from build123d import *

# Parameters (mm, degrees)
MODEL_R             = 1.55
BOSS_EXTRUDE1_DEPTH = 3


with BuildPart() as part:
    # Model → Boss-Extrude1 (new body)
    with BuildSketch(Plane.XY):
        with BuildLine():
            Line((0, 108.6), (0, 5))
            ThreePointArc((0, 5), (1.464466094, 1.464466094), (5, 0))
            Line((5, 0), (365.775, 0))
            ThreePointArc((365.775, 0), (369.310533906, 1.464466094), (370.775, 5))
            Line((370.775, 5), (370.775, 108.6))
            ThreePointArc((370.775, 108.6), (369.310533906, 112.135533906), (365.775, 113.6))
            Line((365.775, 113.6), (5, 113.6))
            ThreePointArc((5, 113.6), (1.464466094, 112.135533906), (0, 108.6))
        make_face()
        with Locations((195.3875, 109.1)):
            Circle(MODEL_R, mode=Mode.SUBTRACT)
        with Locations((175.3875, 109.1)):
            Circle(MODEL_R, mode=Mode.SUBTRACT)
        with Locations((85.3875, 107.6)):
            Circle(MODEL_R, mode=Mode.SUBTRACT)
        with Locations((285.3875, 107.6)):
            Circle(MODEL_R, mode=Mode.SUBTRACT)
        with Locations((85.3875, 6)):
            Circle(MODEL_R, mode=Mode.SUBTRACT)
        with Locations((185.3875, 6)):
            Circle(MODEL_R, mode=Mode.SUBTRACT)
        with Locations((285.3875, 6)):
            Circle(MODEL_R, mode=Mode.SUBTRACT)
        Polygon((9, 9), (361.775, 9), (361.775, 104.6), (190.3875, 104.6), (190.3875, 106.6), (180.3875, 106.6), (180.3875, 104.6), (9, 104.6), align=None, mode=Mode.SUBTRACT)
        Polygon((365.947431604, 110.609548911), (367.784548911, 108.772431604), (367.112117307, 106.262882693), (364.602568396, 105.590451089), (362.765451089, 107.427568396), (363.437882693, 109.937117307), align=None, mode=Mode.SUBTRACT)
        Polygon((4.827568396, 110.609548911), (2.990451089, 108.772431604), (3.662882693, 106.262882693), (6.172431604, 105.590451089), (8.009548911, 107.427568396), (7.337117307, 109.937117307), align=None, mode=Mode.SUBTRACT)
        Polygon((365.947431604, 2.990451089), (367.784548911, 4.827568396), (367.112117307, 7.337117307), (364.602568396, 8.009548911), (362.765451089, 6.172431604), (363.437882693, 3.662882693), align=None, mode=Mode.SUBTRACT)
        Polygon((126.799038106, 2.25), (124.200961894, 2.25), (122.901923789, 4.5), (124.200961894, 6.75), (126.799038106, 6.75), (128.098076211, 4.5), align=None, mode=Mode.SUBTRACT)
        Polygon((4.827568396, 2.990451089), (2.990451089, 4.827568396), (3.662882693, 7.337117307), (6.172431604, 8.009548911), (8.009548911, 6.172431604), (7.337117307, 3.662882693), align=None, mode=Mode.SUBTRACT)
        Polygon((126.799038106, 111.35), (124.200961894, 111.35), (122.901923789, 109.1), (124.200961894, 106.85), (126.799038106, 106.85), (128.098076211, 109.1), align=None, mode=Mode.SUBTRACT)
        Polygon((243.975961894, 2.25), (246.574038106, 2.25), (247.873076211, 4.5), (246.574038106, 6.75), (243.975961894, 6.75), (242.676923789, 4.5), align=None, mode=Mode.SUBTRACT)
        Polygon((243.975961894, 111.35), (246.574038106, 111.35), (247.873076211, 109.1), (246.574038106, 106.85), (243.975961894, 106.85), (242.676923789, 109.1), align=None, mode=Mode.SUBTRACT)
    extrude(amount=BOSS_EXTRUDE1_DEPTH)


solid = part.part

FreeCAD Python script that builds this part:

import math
import FreeCAD as App
import Part
import Sketcher
Q = App.Units.Quantity

doc = App.newDocument("Part")
params = doc.addObject("Spreadsheet::Sheet", "Params")
for row, (alias, value) in enumerate([
    ("sketch1_radius", "5 mm"),
    ("sketch1_diameter", "3.1 mm"),
    ("sketch1_width", "10 mm"),
    ("sketch1_height", "2 mm"),
    ("sketch1_height2", "103.6 mm"),
    ("pad1_length", "3 mm"),
], start=1):
    params.set(f"A{row}", alias)
    params.set(f"B{row}", "=" + value)
    params.setAlias(f"B{row}", alias)

body = doc.addObject("PartDesign::Body", "Body")

# Sketch on XY plane
sketch1 = body.newObject("Sketcher::SketchObject", "Sketch")
sketch1.AttachmentSupport = (doc.getObject("XY_Plane"), [""])
sketch1.MapMode = "FlatFace"
sketch1.addGeometry(Part.LineSegment(App.Vector(0, 108.6, 0), App.Vector(0, 5, 0)), False)
sketch1.addGeometry(Part.ArcOfCircle(Part.Circle(App.Vector(5, 5, 0), App.Vector(0, 0, 1), 5), math.radians(180), math.radians(270)), False)
sketch1.addGeometry(Part.LineSegment(App.Vector(5, 0, 0), App.Vector(365.775, 0, 0)), False)
sketch1.addGeometry(Part.ArcOfCircle(Part.Circle(App.Vector(365.775, 5, 0), App.Vector(0, 0, 1), 5), math.radians(-90), math.radians(0)), False)
sketch1.addGeometry(Part.LineSegment(App.Vector(370.775, 5, 0), App.Vector(370.775, 108.6, 0)), False)
sketch1.addGeometry(Part.ArcOfCircle(Part.Circle(App.Vector(365.775, 108.6, 0), App.Vector(0, 0, 1), 5), math.radians(0), math.radians(90)), False)
sketch1.addGeometry(Part.LineSegment(App.Vector(365.775, 113.6, 0), App.Vector(5, 113.6, 0)), False)
sketch1.addGeometry(Part.ArcOfCircle(Part.Circle(App.Vector(5, 108.6, 0), App.Vector(0, 0, 1), 5), math.radians(90), math.radians(180)), False)
sketch1.addGeometry(Part.LineSegment(App.Vector(7.337117, 3.662883, 0), App.Vector(4.827568, 2.990451, 0)), False)
sketch1.addGeometry(Part.LineSegment(App.Vector(4.827568, 2.990451, 0), App.Vector(2.990451, 4.827568, 0)), False)
sketch1.addGeometry(Part.LineSegment(App.Vector(2.990451, 4.827568, 0), App.Vector(3.662883, 7.337117, 0)), False)
sketch1.addGeometry(Part.LineSegment(App.Vector(3.662883, 7.337117, 0), App.Vector(6.172432, 8.009549, 0)), False)
sketch1.addGeometry(Part.LineSegment(App.Vector(6.172432, 8.009549, 0), App.Vector(8.009549, 6.172432, 0)), False)
sketch1.addGeometry(Part.LineSegment(App.Vector(8.009549, 6.172432, 0), App.Vector(7.337117, 3.662883, 0)), False)
sketch1.addGeometry(Part.Circle(App.Vector(85.3875, 6, 0), App.Vector(0, 0, 1), 1.55), False)
sketch1.addGeometry(Part.LineSegment(App.Vector(128.098076, 4.5, 0), App.Vector(126.799038, 2.25, 0)), False)
sketch1.addGeometry(Part.LineSegment(App.Vector(126.799038, 2.25, 0), App.Vector(124.200962, 2.25, 0)), False)
sketch1.addGeometry(Part.LineSegment(App.Vector(124.200962, 2.25, 0), App.Vector(122.901924, 4.5, 0)), False)
sketch1.addGeometry(Part.LineSegment(App.Vector(122.901924, 4.5, 0), App.Vector(124.200962, 6.75, 0)), False)
sketch1.addGeometry(Part.LineSegment(App.Vector(124.200962, 6.75, 0), App.Vector(126.799038, 6.75, 0)), False)
sketch1.addGeometry(Part.LineSegment(App.Vector(126.799038, 6.75, 0), App.Vector(128.098076, 4.5, 0)), False)
sketch1.addGeometry(Part.Circle(App.Vector(185.3875, 6, 0), App.Vector(0, 0, 1), 1.55), False)
sketch1.addGeometry(Part.LineSegment(App.Vector(246.574038, 2.25, 0), App.Vector(243.975962, 2.25, 0)), False)
sketch1.addGeometry(Part.LineSegment(App.Vector(243.975962, 2.25, 0), App.Vector(242.676924, 4.5, 0)), False)
sketch1.addGeometry(Part.LineSegment(App.Vector(242.676924, 4.5, 0), App.Vector(243.975962, 6.75, 0)), False)
sketch1.addGeometry(Part.LineSegment(App.Vector(243.975962, 6.75, 0), App.Vector(246.574038, 6.75, 0)), False)
sketch1.addGeometry(Part.LineSegment(App.Vector(246.574038, 6.75, 0), App.Vector(247.873076, 4.5, 0)), False)
sketch1.addGeometry(Part.LineSegment(App.Vector(247.873076, 4.5, 0), App.Vector(246.574038, 2.25, 0)), False)
sketch1.addGeometry(Part.Circle(App.Vector(285.3875, 6, 0), App.Vector(0, 0, 1), 1.55), False)
sketch1.addGeometry(Part.LineSegment(App.Vector(367.784549, 4.827568, 0), App.Vector(365.947432, 2.990451, 0)), False)
sketch1.addGeometry(Part.LineSegment(App.Vector(365.947432, 2.990451, 0), App.Vector(363.437883, 3.662883, 0)), False)
sketch1.addGeometry(Part.LineSegment(App.Vector(363.437883, 3.662883, 0), App.Vector(362.765451, 6.172432, 0)), False)
sketch1.addGeometry(Part.LineSegment(App.Vector(362.765451, 6.172432, 0), App.Vector(364.602568, 8.009549, 0)), False)
sketch1.addGeometry(Part.LineSegment(App.Vector(364.602568, 8.009549, 0), App.Vector(367.112117, 7.337117, 0)), False)
sketch1.addGeometry(Part.LineSegment(App.Vector(367.112117, 7.337117, 0), App.Vector(367.784549, 4.827568, 0)), False)
sketch1.addGeometry(Part.LineSegment(App.Vector(361.775, 9, 0), App.Vector(9, 9, 0)), False)
sketch1.addGeometry(Part.LineSegment(App.Vector(9, 9, 0), App.Vector(9, 104.6, 0)), False)
sketch1.addGeometry(Part.LineSegment(App.Vector(9, 104.6, 0), App.Vector(180.3875, 104.6, 0)), False)
sketch1.addGeometry(Part.LineSegment(App.Vector(180.3875, 104.6, 0), App.Vector(180.3875, 106.6, 0)), False)
sketch1.addGeometry(Part.LineSegment(App.Vector(180.3875, 106.6, 0), App.Vector(190.3875, 106.6, 0)), False)
sketch1.addGeometry(Part.LineSegment(App.Vector(190.3875, 106.6, 0), App.Vector(190.3875, 104.6, 0)), False)
sketch1.addGeometry(Part.LineSegment(App.Vector(190.3875, 104.6, 0), App.Vector(361.775, 104.6, 0)), False)
sketch1.addGeometry(Part.LineSegment(App.Vector(361.775, 104.6, 0), App.Vector(361.775, 9, 0)), False)
sketch1.addGeometry(Part.LineSegment(App.Vector(2.990451, 108.772432, 0), App.Vector(4.827568, 110.609549, 0)), False)
sketch1.addGeometry(Part.LineSegment(App.Vector(4.827568, 110.609549, 0), App.Vector(7.337117, 109.937117, 0)), False)
sketch1.addGeometry(Part.LineSegment(App.Vector(7.337117, 109.937117, 0), App.Vector(8.009549, 107.427568, 0)), False)
sketch1.addGeometry(Part.LineSegment(App.Vector(8.009549, 107.427568, 0), App.Vector(6.172432, 105.590451, 0)), False)
sketch1.addGeometry(Part.LineSegment(App.Vector(6.172432, 105.590451, 0), App.Vector(3.662883, 106.262883, 0)), False)
sketch1.addGeometry(Part.LineSegment(App.Vector(3.662883, 106.262883, 0), App.Vector(2.990451, 108.772432, 0)), False)
sketch1.addGeometry(Part.Circle(App.Vector(85.3875, 107.6, 0), App.Vector(0, 0, 1), 1.55), False)
sketch1.addGeometry(Part.LineSegment(App.Vector(124.200962, 111.35, 0), App.Vector(126.799038, 111.35, 0)), False)
sketch1.addGeometry(Part.LineSegment(App.Vector(126.799038, 111.35, 0), App.Vector(128.098076, 109.1, 0)), False)
sketch1.addGeometry(Part.LineSegment(App.Vector(128.098076, 109.1, 0), App.Vector(126.799038, 106.85, 0)), False)
sketch1.addGeometry(Part.LineSegment(App.Vector(126.799038, 106.85, 0), App.Vector(124.200962, 106.85, 0)), False)
sketch1.addGeometry(Part.LineSegment(App.Vector(124.200962, 106.85, 0), App.Vector(122.901924, 109.1, 0)), False)
sketch1.addGeometry(Part.LineSegment(App.Vector(122.901924, 109.1, 0), App.Vector(124.200962, 111.35, 0)), False)
sketch1.addGeometry(Part.Circle(App.Vector(175.3875, 109.1, 0), App.Vector(0, 0, 1), 1.55), False)
sketch1.addGeometry(Part.Circle(App.Vector(195.3875, 109.1, 0), App.Vector(0, 0, 1), 1.55), False)
sketch1.addGeometry(Part.LineSegment(App.Vector(242.676924, 109.1, 0), App.Vector(243.975962, 111.35, 0)), False)
sketch1.addGeometry(Part.LineSegment(App.Vector(243.975962, 111.35, 0), App.Vector(246.574038, 111.35, 0)), False)
sketch1.addGeometry(Part.LineSegment(App.Vector(246.574038, 111.35, 0), App.Vector(247.873076, 109.1, 0)), False)
sketch1.addGeometry(Part.LineSegment(App.Vector(247.873076, 109.1, 0), App.Vector(246.574038, 106.85, 0)), False)
sketch1.addGeometry(Part.LineSegment(App.Vector(246.574038, 106.85, 0), App.Vector(243.975962, 106.85, 0)), False)
sketch1.addGeometry(Part.LineSegment(App.Vector(243.975962, 106.85, 0), App.Vector(242.676924, 109.1, 0)), False)
sketch1.addGeometry(Part.Circle(App.Vector(285.3875, 107.6, 0), App.Vector(0, 0, 1), 1.55), False)
sketch1.addGeometry(Part.LineSegment(App.Vector(363.437883, 109.937117, 0), App.Vector(365.947432, 110.609549, 0)), False)
sketch1.addGeometry(Part.LineSegment(App.Vector(365.947432, 110.609549, 0), App.Vector(367.784549, 108.772432, 0)), False)
sketch1.addGeometry(Part.LineSegment(App.Vector(367.784549, 108.772432, 0), App.Vector(367.112117, 106.262883, 0)), False)
sketch1.addGeometry(Part.LineSegment(App.Vector(367.112117, 106.262883, 0), App.Vector(364.602568, 105.590451, 0)), False)
sketch1.addGeometry(Part.LineSegment(App.Vector(364.602568, 105.590451, 0), App.Vector(362.765451, 107.427568, 0)), False)
sketch1.addGeometry(Part.LineSegment(App.Vector(362.765451, 107.427568, 0), App.Vector(363.437883, 109.937117, 0)), False)
sketch1.addConstraint(Sketcher.Constraint("Tangent", 0, 2, 1, 1))
sketch1.addConstraint(Sketcher.Constraint("Tangent", 1, 2, 2, 1))
sketch1.addConstraint(Sketcher.Constraint("Tangent", 2, 2, 3, 1))
sketch1.addConstraint(Sketcher.Constraint("Tangent", 3, 2, 4, 1))
sketch1.addConstraint(Sketcher.Constraint("Tangent", 4, 2, 5, 1))
sketch1.addConstraint(Sketcher.Constraint("Tangent", 5, 2, 6, 1))
sketch1.addConstraint(Sketcher.Constraint("Tangent", 6, 2, 7, 1))
sketch1.addConstraint(Sketcher.Constraint("Tangent", 7, 2, 0, 1))
sketch1.addConstraint(Sketcher.Constraint("Coincident", 8, 2, 9, 1))
sketch1.addConstraint(Sketcher.Constraint("Coincident", 9, 2, 10, 1))
sketch1.addConstraint(Sketcher.Constraint("Coincident", 10, 2, 11, 1))
sketch1.addConstraint(Sketcher.Constraint("Coincident", 11, 2, 12, 1))
sketch1.addConstraint(Sketcher.Constraint("Coincident", 12, 2, 13, 1))
sketch1.addConstraint(Sketcher.Constraint("Coincident", 13, 2, 8, 1))
sketch1.addConstraint(Sketcher.Constraint("Coincident", 15, 2, 16, 1))
sketch1.addConstraint(Sketcher.Constraint("Coincident", 16, 2, 17, 1))
sketch1.addConstraint(Sketcher.Constraint("Coincident", 17, 2, 18, 1))
sketch1.addConstraint(Sketcher.Constraint("Coincident", 18, 2, 19, 1))
sketch1.addConstraint(Sketcher.Constraint("Coincident", 19, 2, 20, 1))
sketch1.addConstraint(Sketcher.Constraint("Coincident", 20, 2, 15, 1))
sketch1.addConstraint(Sketcher.Constraint("Coincident", 22, 2, 23, 1))
sketch1.addConstraint(Sketcher.Constraint("Coincident", 23, 2, 24, 1))
sketch1.addConstraint(Sketcher.Constraint("Coincident", 24, 2, 25, 1))
sketch1.addConstraint(Sketcher.Constraint("Coincident", 25, 2, 26, 1))
sketch1.addConstraint(Sketcher.Constraint("Coincident", 26, 2, 27, 1))
sketch1.addConstraint(Sketcher.Constraint("Coincident", 27, 2, 22, 1))
sketch1.addConstraint(Sketcher.Constraint("Coincident", 29, 2, 30, 1))
sketch1.addConstraint(Sketcher.Constraint("Coincident", 30, 2, 31, 1))
sketch1.addConstraint(Sketcher.Constraint("Coincident", 31, 2, 32, 1))
sketch1.addConstraint(Sketcher.Constraint("Coincident", 32, 2, 33, 1))
sketch1.addConstraint(Sketcher.Constraint("Coincident", 33, 2, 34, 1))
sketch1.addConstraint(Sketcher.Constraint("Coincident", 34, 2, 29, 1))
sketch1.addConstraint(Sketcher.Constraint("Coincident", 35, 2, 36, 1))
sketch1.addConstraint(Sketcher.Constraint("Coincident", 36, 2, 37, 1))
sketch1.addConstraint(Sketcher.Constraint("Coincident", 37, 2, 38, 1))
sketch1.addConstraint(Sketcher.Constraint("Coincident", 38, 2, 39, 1))
sketch1.addConstraint(Sketcher.Constraint("Coincident", 39, 2, 40, 1))
sketch1.addConstraint(Sketcher.Constraint("Coincident", 40, 2, 41, 1))
sketch1.addConstraint(Sketcher.Constraint("Coincident", 41, 2, 42, 1))
sketch1.addConstraint(Sketcher.Constraint("Coincident", 42, 2, 35, 1))
sketch1.addConstraint(Sketcher.Constraint("Coincident", 43, 2, 44, 1))
sketch1.addConstraint(Sketcher.Constraint("Coincident", 44, 2, 45, 1))
sketch1.addConstraint(Sketcher.Constraint("Coincident", 45, 2, 46, 1))
sketch1.addConstraint(Sketcher.Constraint("Coincident", 46, 2, 47, 1))
sketch1.addConstraint(Sketcher.Constraint("Coincident", 47, 2, 48, 1))
sketch1.addConstraint(Sketcher.Constraint("Coincident", 48, 2, 43, 1))
sketch1.addConstraint(Sketcher.Constraint("Coincident", 50, 2, 51, 1))
sketch1.addConstraint(Sketcher.Constraint("Coincident", 51, 2, 52, 1))
sketch1.addConstraint(Sketcher.Constraint("Coincident", 52, 2, 53, 1))
sketch1.addConstraint(Sketcher.Constraint("Coincident", 53, 2, 54, 1))
sketch1.addConstraint(Sketcher.Constraint("Coincident", 54, 2, 55, 1))
sketch1.addConstraint(Sketcher.Constraint("Coincident", 55, 2, 50, 1))
sketch1.addConstraint(Sketcher.Constraint("Coincident", 58, 2, 59, 1))
sketch1.addConstraint(Sketcher.Constraint("Coincident", 59, 2, 60, 1))
sketch1.addConstraint(Sketcher.Constraint("Coincident", 60, 2, 61, 1))
sketch1.addConstraint(Sketcher.Constraint("Coincident", 61, 2, 62, 1))
sketch1.addConstraint(Sketcher.Constraint("Coincident", 62, 2, 63, 1))
sketch1.addConstraint(Sketcher.Constraint("Coincident", 63, 2, 58, 1))
sketch1.addConstraint(Sketcher.Constraint("Coincident", 65, 2, 66, 1))
sketch1.addConstraint(Sketcher.Constraint("Coincident", 66, 2, 67, 1))
sketch1.addConstraint(Sketcher.Constraint("Coincident", 67, 2, 68, 1))
sketch1.addConstraint(Sketcher.Constraint("Coincident", 68, 2, 69, 1))
sketch1.addConstraint(Sketcher.Constraint("Coincident", 69, 2, 70, 1))
sketch1.addConstraint(Sketcher.Constraint("Coincident", 70, 2, 65, 1))
sketch1.addConstraint(Sketcher.Constraint("Vertical", 0))
sketch1.addConstraint(Sketcher.Constraint("Horizontal", 2))
sketch1.addConstraint(Sketcher.Constraint("Vertical", 4))
sketch1.addConstraint(Sketcher.Constraint("Horizontal", 6))
sketch1.addConstraint(Sketcher.Constraint("Horizontal", 16))
sketch1.addConstraint(Sketcher.Constraint("Horizontal", 19))
sketch1.addConstraint(Sketcher.Constraint("Horizontal", 22))
sketch1.addConstraint(Sketcher.Constraint("Horizontal", 25))
sketch1.addConstraint(Sketcher.Constraint("Horizontal", 35))
sketch1.addConstraint(Sketcher.Constraint("Vertical", 36))
sketch1.addConstraint(Sketcher.Constraint("Horizontal", 37))
sketch1.addConstraint(Sketcher.Constraint("Vertical", 38))
sketch1.addConstraint(Sketcher.Constraint("Horizontal", 39))
sketch1.addConstraint(Sketcher.Constraint("Vertical", 40))
sketch1.addConstraint(Sketcher.Constraint("Horizontal", 41))
sketch1.addConstraint(Sketcher.Constraint("Vertical", 42))
sketch1.addConstraint(Sketcher.Constraint("Horizontal", 50))
sketch1.addConstraint(Sketcher.Constraint("Horizontal", 53))
sketch1.addConstraint(Sketcher.Constraint("Horizontal", 59))
sketch1.addConstraint(Sketcher.Constraint("Horizontal", 62))
sketch1.addConstraint(Sketcher.Constraint("Equal", 1, 3))
sketch1.addConstraint(Sketcher.Constraint("Equal", 3, 5))
sketch1.addConstraint(Sketcher.Constraint("Equal", 5, 7))
sketch1.addConstraint(Sketcher.Constraint("Equal", 14, 21))
sketch1.addConstraint(Sketcher.Constraint("Equal", 21, 28))
sketch1.addConstraint(Sketcher.Constraint("Equal", 28, 49))
sketch1.addConstraint(Sketcher.Constraint("Equal", 49, 56))
sketch1.addConstraint(Sketcher.Constraint("Equal", 56, 57))
sketch1.addConstraint(Sketcher.Constraint("Equal", 57, 64))
sketch1.addConstraint(Sketcher.Constraint("PointOnObject", 0, 2, -2))
sketch1.addConstraint(Sketcher.Constraint("PointOnObject", 1, 2, -1))
sketch1.addConstraint(Sketcher.Constraint("Parallel", 8, 11))
sketch1.addConstraint(Sketcher.Constraint("Parallel", 9, 12))
sketch1.addConstraint(Sketcher.Constraint("Parallel", 10, 13))
sketch1.addConstraint(Sketcher.Constraint("Parallel", 15, 18))
sketch1.addConstraint(Sketcher.Constraint("Parallel", 17, 20))
sketch1.addConstraint(Sketcher.Constraint("Parallel", 20, 23))
sketch1.addConstraint(Sketcher.Constraint("Parallel", 18, 24))
sketch1.addConstraint(Sketcher.Constraint("Parallel", 23, 26))
sketch1.addConstraint(Sketcher.Constraint("Parallel", 24, 27))
sketch1.addConstraint(Sketcher.Constraint("Perpendicular", 12, 29))
sketch1.addConstraint(Sketcher.Constraint("Perpendicular", 13, 30))
sketch1.addConstraint(Sketcher.Constraint("Perpendicular", 11, 31))
sketch1.addConstraint(Sketcher.Constraint("Parallel", 29, 32))
sketch1.addConstraint(Sketcher.Constraint("Parallel", 30, 33))
sketch1.addConstraint(Sketcher.Constraint("Parallel", 31, 34))
sketch1.addConstraint(Sketcher.Constraint("Parallel", 32, 43))
sketch1.addConstraint(Sketcher.Constraint("Parallel", 33, 44))
sketch1.addConstraint(Sketcher.Constraint("Parallel", 34, 45))
sketch1.addConstraint(Sketcher.Constraint("Parallel", 43, 46))
sketch1.addConstraint(Sketcher.Constraint("Parallel", 44, 47))
sketch1.addConstraint(Sketcher.Constraint("Parallel", 45, 48))
sketch1.addConstraint(Sketcher.Constraint("Parallel", 26, 51))
sketch1.addConstraint(Sketcher.Constraint("Parallel", 27, 52))
sketch1.addConstraint(Sketcher.Constraint("Parallel", 51, 54))
sketch1.addConstraint(Sketcher.Constraint("Parallel", 52, 55))
sketch1.addConstraint(Sketcher.Constraint("Parallel", 55, 58))
sketch1.addConstraint(Sketcher.Constraint("Parallel", 54, 60))
sketch1.addConstraint(Sketcher.Constraint("Parallel", 58, 61))
sketch1.addConstraint(Sketcher.Constraint("Parallel", 60, 63))
sketch1.addConstraint(Sketcher.Constraint("Perpendicular", 48, 65))
sketch1.addConstraint(Sketcher.Constraint("Perpendicular", 46, 66))
sketch1.addConstraint(Sketcher.Constraint("Perpendicular", 47, 67))
sketch1.addConstraint(Sketcher.Constraint("Parallel", 65, 68))
sketch1.addConstraint(Sketcher.Constraint("Parallel", 66, 69))
sketch1.addConstraint(Sketcher.Constraint("Parallel", 67, 70))
sketch1.addConstraint(Sketcher.Constraint("Horizontal", 14, 3, 21, 3))
sketch1.addConstraint(Sketcher.Constraint("Horizontal", 21, 3, 28, 3))
sketch1.addConstraint(Sketcher.Constraint("Horizontal", 56, 3, 57, 3))
sketch1.addConstraint(Sketcher.Constraint("Horizontal", 49, 3, 64, 3))
sketch1.addConstraint(Sketcher.Constraint("Horizontal", 17, 2, 20, 2))
sketch1.addConstraint(Sketcher.Constraint("Horizontal", 16, 2, 22, 2))
sketch1.addConstraint(Sketcher.Constraint("Horizontal", 20, 2, 23, 2))
sketch1.addConstraint(Sketcher.Constraint("Horizontal", 19, 2, 24, 2))
sketch1.addConstraint(Sketcher.Constraint("Horizontal", 23, 2, 26, 2))
sketch1.addConstraint(Sketcher.Constraint("Horizontal", 8, 2, 29, 2))
sketch1.addConstraint(Sketcher.Constraint("Horizontal", 13, 2, 30, 2))
sketch1.addConstraint(Sketcher.Constraint("Horizontal", 12, 2, 31, 2))
sketch1.addConstraint(Sketcher.Constraint("Horizontal", 11, 2, 32, 2))
sketch1.addConstraint(Sketcher.Constraint("Horizontal", 10, 2, 33, 2))
sketch1.addConstraint(Sketcher.Constraint("Horizontal", 37, 2, 40, 2))
sketch1.addConstraint(Sketcher.Constraint("Horizontal", 57, 3, 51, 2))
sketch1.addConstraint(Sketcher.Constraint("Horizontal", 51, 2, 54, 2))
sketch1.addConstraint(Sketcher.Constraint("Horizontal", 55, 2, 58, 2))
sketch1.addConstraint(Sketcher.Constraint("Horizontal", 54, 2, 60, 2))
sketch1.addConstraint(Sketcher.Constraint("Horizontal", 53, 2, 61, 2))
sketch1.addConstraint(Sketcher.Constraint("Horizontal", 60, 2, 63, 2))
sketch1.addConstraint(Sketcher.Constraint("Horizontal", 43, 2, 65, 2))
sketch1.addConstraint(Sketcher.Constraint("Horizontal", 48, 2, 66, 2))
sketch1.addConstraint(Sketcher.Constraint("Horizontal", 47, 2, 67, 2))
sketch1.addConstraint(Sketcher.Constraint("Horizontal", 46, 2, 68, 2))
sketch1.addConstraint(Sketcher.Constraint("Horizontal", 45, 2, 69, 2))
sketch1.addConstraint(Sketcher.Constraint("Vertical", 14, 3, 49, 3))
sketch1.addConstraint(Sketcher.Constraint("Vertical", 28, 3, 64, 3))
sketch1.addConstraint(Sketcher.Constraint("Vertical", 16, 2, 18, 2))
sketch1.addConstraint(Sketcher.Constraint("Vertical", 15, 2, 19, 2))
sketch1.addConstraint(Sketcher.Constraint("Vertical", 8, 2, 43, 2))
sketch1.addConstraint(Sketcher.Constraint("Vertical", 13, 2, 44, 2))
sketch1.addConstraint(Sketcher.Constraint("Vertical", 12, 2, 45, 2))
sketch1.addConstraint(Sketcher.Constraint("Vertical", 11, 2, 46, 2))
sketch1.addConstraint(Sketcher.Constraint("Vertical", 10, 2, 47, 2))
sketch1.addConstraint(Sketcher.Constraint("Vertical", 19, 2, 50, 2))
sketch1.addConstraint(Sketcher.Constraint("Vertical", 20, 2, 51, 2))
sketch1.addConstraint(Sketcher.Constraint("Vertical", 50, 2, 52, 2))
sketch1.addConstraint(Sketcher.Constraint("Vertical", 18, 2, 53, 2))
sketch1.addConstraint(Sketcher.Constraint("Vertical", 24, 2, 58, 2))
sketch1.addConstraint(Sketcher.Constraint("Vertical", 27, 2, 59, 2))
sketch1.addConstraint(Sketcher.Constraint("Vertical", 29, 2, 65, 2))
sketch1.addConstraint(Sketcher.Constraint("Vertical", 34, 2, 66, 2))
sketch1.addConstraint(Sketcher.Constraint("Vertical", 33, 2, 67, 2))
sketch1.addConstraint(Sketcher.Constraint("Equal", 19, 22))
sketch1.addConstraint(Sketcher.Constraint("Equal", 37, 41))
sketch1.addConstraint(Sketcher.Constraint("Equal", 8, 9))
sketch1.addConstraint(Sketcher.Constraint("Equal", 9, 10))
sketch1.addConstraint(Sketcher.Constraint("Equal", 10, 11))
sketch1.addConstraint(Sketcher.Constraint("Equal", 13, 15))
sketch1.addConstraint(Sketcher.Constraint("Radius", 1, 5.0))
sketch1.addConstraint(Sketcher.Constraint("Diameter", 14, 3.1))
sketch1.addConstraint(Sketcher.Constraint("DistanceX", 39, 1, 39, 2, 10.0))
sketch1.addConstraint(Sketcher.Constraint("DistanceY", 38, 1, 38, 2, 2.0))
sketch1.addConstraint(Sketcher.Constraint("Angle", 8, Q("-165 deg")))
sketch1.addConstraint(Sketcher.Constraint("Angle", 15, Q("-120 deg")))
sketch1.addConstraint(Sketcher.Constraint("DistanceY", 0, 2, 0, 1, 103.6))
sketch1.addConstraint(Sketcher.Constraint("DistanceY", 36, 1, 36, 2, 95.6))
sketch1.addConstraint(Sketcher.Constraint("DistanceY", -1, 1, 14, 3, 6.0))
sketch1.addConstraint(Sketcher.Constraint("DistanceX", -1, 1, 35, 2, 9.0))
sketch1.addConstraint(Sketcher.Constraint("DistanceY", -1, 1, 35, 2, 9.0))
sketch1.addConstraint(Sketcher.Constraint("DistanceY", -1, 1, 49, 3, 107.6))
sketch1.addConstraint(Sketcher.Constraint("DistanceY", -1, 1, 56, 3, 109.1))
sketch1.addConstraint(Sketcher.Constraint("DistanceY", -1, 1, 17, 2, 4.5))
sketch1.addConstraint(Sketcher.Constraint("DistanceX", 2, 1, 2, 2, 360.775))
sketch1.addConstraint(Sketcher.Constraint("DistanceX", 35, 2, 35, 1, 352.775))
sketch1.addConstraint(Sketcher.Constraint("DistanceY", -1, 1, 15, 2, 2.25))
sketch1.addConstraint(Sketcher.Constraint("DistanceX", -1, 1, 14, 3, 85.3875))
sketch1.addConstraint(Sketcher.Constraint("DistanceX", -1, 1, 21, 3, 185.3875))
sketch1.addConstraint(Sketcher.Constraint("DistanceX", -1, 1, 28, 3, 285.3875))
sketch1.addConstraint(Sketcher.Constraint("DistanceX", -1, 1, 56, 3, 175.3875))
sketch1.addConstraint(Sketcher.Constraint("DistanceX", -1, 1, 57, 3, 195.3875))
sketch1.addConstraint(Sketcher.Constraint("DistanceX", 16, 2, 16, 1, 2.598076))
sketch1.addConstraint(Sketcher.Constraint("DistanceX", -1, 1, 8, 2, 4.827568))
sketch1.addConstraint(Sketcher.Constraint("DistanceY", -1, 1, 8, 2, 2.990451))
sketch1.addConstraint(Sketcher.Constraint("DistanceX", -1, 1, 15, 2, 126.799038))
sketch1.addConstraint(Sketcher.Constraint("DistanceX", -1, 1, 22, 2, 243.975962))
sketch1.addConstraint(Sketcher.Constraint("DistanceX", -1, 1, 29, 2, 365.947432))
sketch1.addConstraint(Sketcher.Constraint("DistanceY", -1, 1, 43, 2, 110.609549))
sketch1.setExpression("Constraints[180]", "Params.sketch1_radius")
sketch1.setExpression("Constraints[181]", "Params.sketch1_diameter")
sketch1.setExpression("Constraints[182]", "Params.sketch1_width")
sketch1.setExpression("Constraints[183]", "Params.sketch1_height")
sketch1.setExpression("Constraints[186]", "Params.sketch1_height2")
pad1 = body.newObject("PartDesign::Pad", "Pad")
pad1.Profile = sketch1
pad1.setExpression("Length", "Params.pad1_length")

doc.recompute()
